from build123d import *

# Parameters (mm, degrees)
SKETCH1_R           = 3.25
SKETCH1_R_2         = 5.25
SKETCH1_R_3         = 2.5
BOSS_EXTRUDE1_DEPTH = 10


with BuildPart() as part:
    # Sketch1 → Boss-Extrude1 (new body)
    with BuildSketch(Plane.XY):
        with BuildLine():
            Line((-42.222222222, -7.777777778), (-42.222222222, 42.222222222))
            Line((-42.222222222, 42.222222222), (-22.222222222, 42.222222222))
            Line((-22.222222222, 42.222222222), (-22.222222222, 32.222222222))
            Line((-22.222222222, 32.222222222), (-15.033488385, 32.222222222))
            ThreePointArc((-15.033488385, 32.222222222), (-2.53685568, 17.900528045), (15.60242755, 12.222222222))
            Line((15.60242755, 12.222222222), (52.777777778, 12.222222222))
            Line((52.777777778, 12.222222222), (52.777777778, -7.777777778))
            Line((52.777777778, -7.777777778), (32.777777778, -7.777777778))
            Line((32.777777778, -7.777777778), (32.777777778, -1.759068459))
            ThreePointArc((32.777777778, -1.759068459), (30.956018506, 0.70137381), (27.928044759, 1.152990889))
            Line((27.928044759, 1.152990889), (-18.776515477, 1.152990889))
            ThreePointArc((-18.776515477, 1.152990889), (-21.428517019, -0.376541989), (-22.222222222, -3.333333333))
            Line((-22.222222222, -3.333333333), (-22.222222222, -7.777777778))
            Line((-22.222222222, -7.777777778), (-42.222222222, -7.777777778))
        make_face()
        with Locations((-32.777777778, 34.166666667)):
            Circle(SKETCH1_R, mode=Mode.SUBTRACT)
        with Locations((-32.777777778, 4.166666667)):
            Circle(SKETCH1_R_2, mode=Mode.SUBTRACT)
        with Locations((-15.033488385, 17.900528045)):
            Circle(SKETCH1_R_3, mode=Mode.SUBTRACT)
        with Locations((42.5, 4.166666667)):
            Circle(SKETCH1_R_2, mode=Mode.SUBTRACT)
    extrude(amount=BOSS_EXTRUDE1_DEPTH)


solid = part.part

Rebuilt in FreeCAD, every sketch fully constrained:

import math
import FreeCAD as App
import Part
import Sketcher
from FreeCAD import Vector

doc = App.newDocument("Part")
body = doc.addObject("PartDesign::Body", "Body")

# Sketch on XY plane
sketch1 = body.newObject("Sketcher::SketchObject", "Sketch")
sketch1.AttachmentSupport = (doc.getObject("XY_Plane"), [""])
sketch1.MapMode = "FlatFace"
sketch1.addGeometry([
    Part.LineSegment(Vector(-42.222222, 42.222222, 0), Vector(-42.222222, -7.777778, 0)),  # 0
    Part.LineSegment(Vector(-42.222222, -7.777778, 0), Vector(-22.222222, -7.777778, 0)),  # 1
    Part.LineSegment(Vector(-22.222222, -7.777778, 0), Vector(-22.222222, -3.333333, 0)),  # 2
    Part.ArcOfCircle(Part.Circle(Vector(-18.256207, -2.813025, 0), Vector(0, 0, 1), 4), math.radians(97.474053), math.radians(187.474053)),  # 3
    Part.LineSegment(Vector(-18.776515, 1.152991, 0), Vector(27.928045, 1.152991, 0)),  # 4
    Part.ArcOfCircle(Part.Circle(Vector(28.896882, -2.727905, 0), Vector(0, 0, 1), 4), math.radians(14.016966), math.radians(104.016966)),  # 5
    Part.LineSegment(Vector(32.777778, -1.759068, 0), Vector(32.777778, -7.777778, 0)),  # 6
    Part.LineSegment(Vector(32.777778, -7.777778, 0), Vector(52.777778, -7.777778, 0)),  # 7
    Part.LineSegment(Vector(52.777778, -7.777778, 0), Vector(52.777778, 12.222222, 0)),  # 8
    Part.LineSegment(Vector(52.777778, 12.222222, 0), Vector(15.602428, 12.222222, 0)),  # 9
    Part.ArcOfCircle(Part.Circle(Vector(16.595975, 47.208117, 0), Vector(0, 0, 1), 35), math.radians(-154.64862), math.radians(-91.626678)),  # 10
    Part.LineSegment(Vector(-15.033488, 32.222222, 0), Vector(-22.222222, 32.222222, 0)),  # 11
    Part.LineSegment(Vector(-22.222222, 32.222222, 0), Vector(-22.222222, 42.222222, 0)),  # 12
    Part.LineSegment(Vector(-22.222222, 42.222222, 0), Vector(-42.222222, 42.222222, 0)),  # 13
    Part.Circle(Vector(42.5, 4.166667, 0), Vector(0, 0, 1), 5.25),  # 14
    Part.Circle(Vector(-32.777778, 4.166667, 0), Vector(0, 0, 1), 5.25),  # 15
    Part.Circle(Vector(-15.033488, 17.900528, 0), Vector(0, 0, 1), 2.5),  # 16
    Part.Circle(Vector(-32.777778, 34.166667, 0), Vector(0, 0, 1), 3.25),  # 17
], False)
sketch1.addConstraint([
    Sketcher.Constraint("Coincident", 0, 2, 1, 1),
    Sketcher.Constraint("Coincident", 1, 2, 2, 1),
    Sketcher.Constraint("Coincident", 2, 2, 3, 2),
    Sketcher.Constraint("Coincident", 3, 1, 4, 1),
    Sketcher.Constraint("Coincident", 4, 2, 5, 2),
    Sketcher.Constraint("Coincident", 5, 1, 6, 1),
    Sketcher.Constraint("Coincident", 6, 2, 7, 1),
    Sketcher.Constraint("Coincident", 7, 2, 8, 1),
    Sketcher.Constraint("Coincident", 8, 2, 9, 1),
    Sketcher.Constraint("Coincident", 9, 2, 10, 2),
    Sketcher.Constraint("Coincident", 10, 1, 11, 1),
    Sketcher.Constraint("Coincident", 11, 2, 12, 1),
    Sketcher.Constraint("Coincident", 12, 2, 13, 1),
    Sketcher.Constraint("Coincident", 13, 2, 0, 1),
    Sketcher.Constraint("Vertical", 0),
    Sketcher.Constraint("Horizontal", 1),
    Sketcher.Constraint("Vertical", 2),
    Sketcher.Constraint("Horizontal", 4),
    Sketcher.Constraint("Vertical", 6),
    Sketcher.Constraint("Horizontal", 7),
    Sketcher.Constraint("Vertical", 8),
    Sketcher.Constraint("Horizontal", 9),
    Sketcher.Constraint("Horizontal", 11),
    Sketcher.Constraint("Vertical", 12),
    Sketcher.Constraint("Horizontal", 13),
    Sketcher.Constraint("Diameter", 16, 5.0),
    Sketcher.Constraint("Radius", 3, 4.0),
    Sketcher.Constraint("Radius", 5, 4.0),
    Sketcher.Constraint("Radius", 10, 35.0),
    Sketcher.Constraint("Diameter", 14, 10.5),
    Sketcher.Constraint("Diameter", 15, 10.5),
    Sketcher.Constraint("Diameter", 17, 6.5),
    Sketcher.Constraint("DistanceX", 1, 1, 1, 2, 20.0),
    Sketcher.Constraint("DistanceX", 7, 1, 7, 2, 20.0),
    Sketcher.Constraint("DistanceX", 13, 2, 13, 1, 20.0),
    Sketcher.Constraint("DistanceY", 0, 2, 0, 1, 50.0),
    Sketcher.Constraint("DistanceY", 8, 1, 8, 2, 20.0),
    Sketcher.Constraint("DistanceY", 12, 1, 12, 2, 10.0),
    Sketcher.Constraint("DistanceY", 15, 3, 17, 3, 30.0),
    Sketcher.Constraint("DistanceX", -1, 1, 14, 3, 42.5),
    Sketcher.Constraint("DistanceY", 2, 2, 15, 3, 7.5),
    Sketcher.Constraint("DistanceX", 4, 1, 4, 2, 46.70456),
    Sketcher.Constraint("DistanceX", 9, 2, 9, 1, 37.17535),
    Sketcher.Constraint("DistanceY", 6, 2, 6, 1, 6.018709),
    Sketcher.Constraint("DistanceX", 11, 2, 11, 1, 7.188734),
    Sketcher.Constraint("DistanceY", 2, 1, 2, 2, 4.444444),
    Sketcher.Constraint("DistanceX", -1, 1, 5, 3, 28.896882),
    Sketcher.Constraint("DistanceX", 16, 3, -1, 1, 15.033488),
    Sketcher.Constraint("DistanceY", -1, 1, 16, 3, 17.900528),
    Sketcher.Constraint("DistanceY", -1, 1, 3, 1, 1.152991),
    Sketcher.Constraint("DistanceY", 5, 1, -1, 1, 1.759068),
    Sketcher.Constraint("DistanceX", 10, 1, -1, 1, 15.033488),
    Sketcher.Constraint("DistanceX", 3, 3, 5, 3, 47.153088),
    Sketcher.Constraint("DistanceY", 3, 3, 5, 3, 0.085119),
    Sketcher.Constraint("DistanceY", 5, 3, 14, 3, 6.894572),
    Sketcher.Constraint("DistanceX", 15, 3, 3, 3, 14.521571),
    Sketcher.Constraint("DistanceX", 17, 3, 16, 3, 17.744289),
])
pad1 = body.newObject("PartDesign::Pad", "Pad")
pad1.Profile = sketch1
pad1.Length = 10

doc.recompute()
